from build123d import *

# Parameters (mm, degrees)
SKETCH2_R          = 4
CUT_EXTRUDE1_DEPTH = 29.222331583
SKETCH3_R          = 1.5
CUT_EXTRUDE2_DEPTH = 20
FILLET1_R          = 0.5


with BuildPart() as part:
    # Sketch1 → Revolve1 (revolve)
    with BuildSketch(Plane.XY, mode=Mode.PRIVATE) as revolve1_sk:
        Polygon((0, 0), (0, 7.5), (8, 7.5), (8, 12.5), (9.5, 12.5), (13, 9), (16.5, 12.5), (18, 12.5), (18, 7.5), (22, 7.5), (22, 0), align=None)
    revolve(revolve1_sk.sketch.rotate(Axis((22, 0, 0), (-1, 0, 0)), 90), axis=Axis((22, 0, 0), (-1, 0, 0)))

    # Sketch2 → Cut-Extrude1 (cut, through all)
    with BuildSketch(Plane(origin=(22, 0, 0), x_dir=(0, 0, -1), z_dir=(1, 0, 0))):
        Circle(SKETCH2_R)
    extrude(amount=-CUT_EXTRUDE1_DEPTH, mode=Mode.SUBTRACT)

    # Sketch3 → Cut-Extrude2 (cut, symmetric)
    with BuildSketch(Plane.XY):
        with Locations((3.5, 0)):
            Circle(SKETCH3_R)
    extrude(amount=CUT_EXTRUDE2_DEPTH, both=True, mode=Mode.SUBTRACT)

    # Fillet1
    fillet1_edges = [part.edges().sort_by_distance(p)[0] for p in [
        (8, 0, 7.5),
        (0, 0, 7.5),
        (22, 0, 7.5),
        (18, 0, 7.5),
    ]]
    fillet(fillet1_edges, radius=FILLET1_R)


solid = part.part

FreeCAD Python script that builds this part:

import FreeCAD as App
import Part
import Sketcher
from FreeCAD import Vector


def edges_at(feature, points):
    """Names of the edges that pass closest to the given points."""
    edges = feature.Shape.Edges
    near = lambda p: min(range(len(edges)), key=lambda i: edges[i].distToShape(Part.Vertex(*p))[0])
    return sorted({f"Edge{near(p) + 1}" for p in points})

doc = App.newDocument("Part")
body = doc.addObject("PartDesign::Body", "Body")

# Sketch on XY plane
sketch1 = body.newObject("Sketcher::SketchObject", "Sketch")
sketch1.AttachmentSupport = (doc.getObject("XY_Plane"), [""])
sketch1.MapMode = "FlatFace"
sketch1.addGeometry([
    Part.LineSegment(Vector(0, 7.5, 0), Vector(0, 0, 0)),  # 0
    Part.LineSegment(Vector(0, 0, 0), Vector(22, 0, 0)),  # 1
    Part.LineSegment(Vector(22, 0, 0), Vector(22, 7.5, 0)),  # 2
    Part.LineSegment(Vector(22, 7.5, 0), Vector(18, 7.5, 0)),  # 3
    Part.LineSegment(Vector(18, 7.5, 0), Vector(18, 12.5, 0)),  # 4
    Part.LineSegment(Vector(18, 12.5, 0), Vector(16.5, 12.5, 0)),  # 5
    Part.LineSegment(Vector(16.5, 12.5, 0), Vector(13, 9, 0)),  # 6
    Part.LineSegment(Vector(13, 9, 0), Vector(9.5, 12.5, 0)),  # 7
    Part.LineSegment(Vector(9.5, 12.5, 0), Vector(8, 12.5, 0)),  # 8
    Part.LineSegment(Vector(8, 12.5, 0), Vector(8, 7.5, 0)),  # 9
    Part.LineSegment(Vector(8, 7.5, 0), Vector(0, 7.5, 0)),  # 10
], False)
sketch1.addConstraint([
    Sketcher.Constraint("Coincident", 0, 2, 1, 1),
    Sketcher.Constraint("Coincident", 1, 2, 2, 1),
    Sketcher.Constraint("Coincident", 2, 2, 3, 1),
    Sketcher.Constraint("Coincident", 3, 2, 4, 1),
    Sketcher.Constraint("Coincident", 4, 2, 5, 1),
    Sketcher.Constraint("Coincident", 5, 2, 6, 1),
    Sketcher.Constraint("Coincident", 6, 2, 7, 1),
    Sketcher.Constraint("Coincident", 7, 2, 8, 1),
    Sketcher.Constraint("Coincident", 8, 2, 9, 1),
    Sketcher.Constraint("Coincident", 9, 2, 10, 1),
    Sketcher.Constraint("Coincident", 10, 2, 0, 1),
    Sketcher.Constraint("Vertical", 0),
    Sketcher.Constraint("Horizontal", 1),
    Sketcher.Constraint("Vertical", 2),
    Sketcher.Constraint("Horizontal", 3),
    Sketcher.Constraint("Vertical", 4),
    Sketcher.Constraint("Horizontal", 5),
    Sketcher.Constraint("Horizontal", 8),
    Sketcher.Constraint("Vertical", 9),
    Sketcher.Constraint("Horizontal", 10),
    Sketcher.Constraint("Coincident", 0, 2, -1, 1),
    Sketcher.Constraint("Perpendicular", 6, 7),
    Sketcher.Constraint("Horizontal", 5, 2, 7, 2),
    Sketcher.Constraint("Horizontal", 3, 2, 9, 2),
    Sketcher.Constraint("Equal", 5, 8),
    Sketcher.Constraint("Equal", 6, 7),
    Sketcher.Constraint("DistanceX", 1, 1, 1, 2, 22.0),
    Sketcher.Constraint("DistanceX", 3, 2, 3, 1, 4.0),
    Sketcher.Constraint("DistanceX", 10, 2, 10, 1, 8.0),
    Sketcher.Constraint("DistanceY", 4, 1, 4, 2, 5.0),
    Sketcher.Constraint("DistanceX", 5, 2, 5, 1, 1.5),
    Sketcher.Constraint("DistanceY", 0, 2, 0, 1, 7.5),
])
revolution = body.newObject("PartDesign::Revolution", "Revolution")
revolution.Profile = sketch1
revolution.ReferenceAxis = (sketch1, ["H_Axis"])
revolution.Angle = 360

# Sketch on YZ plane
sketch2 = body.newObject("Sketcher::SketchObject", "Sketch001")
sketch2.AttachmentSupport = (doc.getObject("YZ_Plane"), [""])
sketch2.MapMode = "FlatFace"
sketch2.AttachmentOffset = App.Placement(Vector(0, 0, 22), App.Rotation())
sketch2.addGeometry(Part.Circle(Vector(0, 0, 0), Vector(0, 0, 1), 4), False)
sketch2.addConstraint([
    Sketcher.Constraint("Coincident", 0, 3, -1, 1),
    Sketcher.Constraint("Diameter", 0, 8.0),
])
pocket1 = body.newObject("PartDesign::Pocket", "Pocket")
pocket1.Profile = sketch2
pocket1.Type = "ThroughAll"

# Sketch on XY plane
sketch3 = body.newObject("Sketcher::SketchObject", "Sketch002")
sketch3.AttachmentSupport = (doc.getObject("XY_Plane"), [""])
sketch3.MapMode = "FlatFace"
sketch3.addGeometry(Part.Circle(Vector(3.5, 0, 0), Vector(0, 0, 1), 1.5), False)
sketch3.addConstraint([
    Sketcher.Constraint("PointOnObject", 0, 3, -1),
    Sketcher.Constraint("Diameter", 0, 3.0),
    Sketcher.Constraint("DistanceX", -1, 1, 0, 3, 3.5),
])
pocket2 = body.newObject("PartDesign::Pocket", "Pocket001")
pocket2.Profile = sketch3
pocket2.Length = 40
pocket2.Midplane = True
doc.recompute()

fillet = body.newObject("PartDesign::Fillet", "Fillet")
fillet.Base = (pocket2, edges_at(pocket2, [
    (8, 0, 7.5),
    (0, 0, 7.5),
    (22, 0, 7.5),
    (18, 0, 7.5),
]))
fillet.Radius = 0.5

doc.recompute()
